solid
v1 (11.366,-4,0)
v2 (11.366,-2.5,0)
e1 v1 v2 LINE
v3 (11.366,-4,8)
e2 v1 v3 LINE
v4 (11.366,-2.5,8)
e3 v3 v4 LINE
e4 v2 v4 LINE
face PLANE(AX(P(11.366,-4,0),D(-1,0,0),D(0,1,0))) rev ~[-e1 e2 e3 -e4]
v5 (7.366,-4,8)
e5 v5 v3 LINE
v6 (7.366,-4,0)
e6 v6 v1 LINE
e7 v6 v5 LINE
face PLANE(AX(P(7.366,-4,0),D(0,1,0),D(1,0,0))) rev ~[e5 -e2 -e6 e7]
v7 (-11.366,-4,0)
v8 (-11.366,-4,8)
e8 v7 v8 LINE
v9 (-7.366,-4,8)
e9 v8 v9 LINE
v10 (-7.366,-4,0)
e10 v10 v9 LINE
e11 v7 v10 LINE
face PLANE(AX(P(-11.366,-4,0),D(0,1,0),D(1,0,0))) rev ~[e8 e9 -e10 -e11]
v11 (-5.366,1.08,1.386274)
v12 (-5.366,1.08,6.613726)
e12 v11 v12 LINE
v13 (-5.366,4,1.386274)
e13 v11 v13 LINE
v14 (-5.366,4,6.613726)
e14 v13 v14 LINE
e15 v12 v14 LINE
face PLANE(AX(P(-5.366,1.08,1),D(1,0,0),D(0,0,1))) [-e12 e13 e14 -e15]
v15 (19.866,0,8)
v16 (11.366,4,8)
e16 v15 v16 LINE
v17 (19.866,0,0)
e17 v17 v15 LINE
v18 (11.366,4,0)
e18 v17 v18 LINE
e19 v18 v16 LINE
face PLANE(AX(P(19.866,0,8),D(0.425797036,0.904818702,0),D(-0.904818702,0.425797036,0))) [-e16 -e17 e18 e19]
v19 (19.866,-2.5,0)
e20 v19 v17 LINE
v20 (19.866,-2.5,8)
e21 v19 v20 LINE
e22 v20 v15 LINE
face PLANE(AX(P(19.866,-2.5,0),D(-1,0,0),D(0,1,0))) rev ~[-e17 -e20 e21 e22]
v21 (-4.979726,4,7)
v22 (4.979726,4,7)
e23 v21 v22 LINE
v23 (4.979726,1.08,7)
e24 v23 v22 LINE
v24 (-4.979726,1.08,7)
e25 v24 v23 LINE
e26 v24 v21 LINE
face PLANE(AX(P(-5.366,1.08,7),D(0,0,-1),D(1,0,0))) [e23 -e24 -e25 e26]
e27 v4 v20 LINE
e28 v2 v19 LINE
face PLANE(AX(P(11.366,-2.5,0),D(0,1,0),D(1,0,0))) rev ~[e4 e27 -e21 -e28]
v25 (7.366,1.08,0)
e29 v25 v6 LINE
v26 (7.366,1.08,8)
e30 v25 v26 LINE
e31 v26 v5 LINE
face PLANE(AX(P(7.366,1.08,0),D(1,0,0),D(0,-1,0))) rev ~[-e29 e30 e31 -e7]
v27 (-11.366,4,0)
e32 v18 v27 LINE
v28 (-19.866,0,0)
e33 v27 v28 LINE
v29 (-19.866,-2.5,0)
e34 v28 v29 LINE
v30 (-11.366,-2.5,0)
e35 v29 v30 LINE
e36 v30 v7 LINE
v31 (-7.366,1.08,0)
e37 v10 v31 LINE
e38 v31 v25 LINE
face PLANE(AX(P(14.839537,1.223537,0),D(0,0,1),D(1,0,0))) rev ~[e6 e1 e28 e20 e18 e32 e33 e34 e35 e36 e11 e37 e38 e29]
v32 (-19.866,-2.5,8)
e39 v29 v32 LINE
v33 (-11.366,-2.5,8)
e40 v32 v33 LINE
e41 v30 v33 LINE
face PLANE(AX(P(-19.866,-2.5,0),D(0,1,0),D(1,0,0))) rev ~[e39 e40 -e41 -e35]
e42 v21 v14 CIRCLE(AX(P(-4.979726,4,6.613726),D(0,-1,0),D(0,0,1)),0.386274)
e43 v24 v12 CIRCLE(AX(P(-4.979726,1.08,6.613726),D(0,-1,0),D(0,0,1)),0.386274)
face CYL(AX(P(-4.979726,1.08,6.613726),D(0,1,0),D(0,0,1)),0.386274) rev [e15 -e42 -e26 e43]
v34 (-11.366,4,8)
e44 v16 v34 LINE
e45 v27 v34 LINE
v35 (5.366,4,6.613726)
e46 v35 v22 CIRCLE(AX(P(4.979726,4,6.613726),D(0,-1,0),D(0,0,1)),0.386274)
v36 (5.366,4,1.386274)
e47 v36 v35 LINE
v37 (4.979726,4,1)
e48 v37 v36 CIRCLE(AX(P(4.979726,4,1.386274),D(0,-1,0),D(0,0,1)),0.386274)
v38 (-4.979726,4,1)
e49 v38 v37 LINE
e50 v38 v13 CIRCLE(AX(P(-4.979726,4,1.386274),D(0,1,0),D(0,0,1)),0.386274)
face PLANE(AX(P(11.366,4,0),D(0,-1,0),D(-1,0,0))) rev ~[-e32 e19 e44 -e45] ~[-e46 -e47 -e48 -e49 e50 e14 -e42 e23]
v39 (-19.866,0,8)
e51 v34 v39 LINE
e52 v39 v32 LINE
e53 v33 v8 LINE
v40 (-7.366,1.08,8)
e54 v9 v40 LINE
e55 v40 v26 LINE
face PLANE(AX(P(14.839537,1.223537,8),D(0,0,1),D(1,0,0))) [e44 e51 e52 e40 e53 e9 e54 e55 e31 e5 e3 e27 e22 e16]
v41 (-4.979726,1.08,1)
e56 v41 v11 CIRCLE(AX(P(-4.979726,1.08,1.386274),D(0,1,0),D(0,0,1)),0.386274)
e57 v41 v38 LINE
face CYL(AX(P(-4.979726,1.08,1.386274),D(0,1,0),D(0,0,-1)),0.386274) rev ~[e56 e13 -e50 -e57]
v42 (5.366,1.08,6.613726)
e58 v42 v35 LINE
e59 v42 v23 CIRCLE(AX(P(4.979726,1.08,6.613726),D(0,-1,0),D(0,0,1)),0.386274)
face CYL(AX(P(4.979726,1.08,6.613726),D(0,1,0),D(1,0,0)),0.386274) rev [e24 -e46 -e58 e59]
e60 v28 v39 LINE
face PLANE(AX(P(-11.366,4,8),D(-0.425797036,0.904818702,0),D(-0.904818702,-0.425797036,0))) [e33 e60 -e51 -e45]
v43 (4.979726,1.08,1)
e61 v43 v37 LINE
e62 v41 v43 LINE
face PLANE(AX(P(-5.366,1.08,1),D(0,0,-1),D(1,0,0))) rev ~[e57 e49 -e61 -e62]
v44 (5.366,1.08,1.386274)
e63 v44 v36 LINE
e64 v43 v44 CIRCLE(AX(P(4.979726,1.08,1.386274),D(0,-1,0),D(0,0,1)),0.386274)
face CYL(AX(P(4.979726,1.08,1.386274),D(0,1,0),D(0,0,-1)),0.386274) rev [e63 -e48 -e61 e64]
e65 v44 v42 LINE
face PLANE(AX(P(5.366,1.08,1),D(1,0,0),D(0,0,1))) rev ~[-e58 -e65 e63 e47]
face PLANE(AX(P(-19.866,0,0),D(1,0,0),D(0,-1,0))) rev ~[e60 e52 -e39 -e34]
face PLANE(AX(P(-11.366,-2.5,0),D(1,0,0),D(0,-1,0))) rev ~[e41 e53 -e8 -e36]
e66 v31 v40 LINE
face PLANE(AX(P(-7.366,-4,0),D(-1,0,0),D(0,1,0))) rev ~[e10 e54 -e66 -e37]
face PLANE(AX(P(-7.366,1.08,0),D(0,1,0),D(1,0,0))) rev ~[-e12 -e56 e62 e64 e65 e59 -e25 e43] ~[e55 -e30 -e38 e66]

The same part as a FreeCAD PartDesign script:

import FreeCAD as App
import Part
import Sketcher


def edges_at(feature, points):
    """Names of the edges that pass closest to the given points."""
    edges = feature.Shape.Edges
    near = lambda p: min(range(len(edges)), key=lambda i: edges[i].distToShape(Part.Vertex(*p))[0])
    return sorted({f"Edge{near(p) + 1}" for p in points})

doc = App.newDocument("Part")
body = doc.addObject("PartDesign::Body", "Body")

# Sketch on XY plane
sketch1 = body.newObject("Sketcher::SketchObject", "Sketch")
sketch1.AttachmentSupport = (doc.getObject("XY_Plane"), [""])
sketch1.MapMode = "FlatFace"
sketch1.addGeometry([
    Part.LineSegment(App.Vector(11.4, 4, 0), App.Vector(-11.4, 4, 0)),  # 0
    Part.LineSegment(App.Vector(-11.4, 4, 0), App.Vector(-11.4, 0, 0)),  # 1
    Part.LineSegment(App.Vector(-11.4, 0, 0), App.Vector(-19.9, 0, 0)),  # 2
    Part.LineSegment(App.Vector(-19.9, 0, 0), App.Vector(-19.9, -2.5, 0)),  # 3
    Part.LineSegment(App.Vector(-19.9, -2.5, 0), App.Vector(-11.4, -2.5, 0)),  # 4
    Part.LineSegment(App.Vector(-11.4, -2.5, 0), App.Vector(-11.4, -4, 0)),  # 5
    Part.LineSegment(App.Vector(-11.4, -4, 0), App.Vector(-7.4, -4, 0)),  # 6
    Part.LineSegment(App.Vector(-7.4, -4, 0), App.Vector(-7.4, 1.1, 0)),  # 7
    Part.LineSegment(App.Vector(-7.4, 1.1, 0), App.Vector(7.4, 1.1, 0)),  # 8
    Part.LineSegment(App.Vector(7.4, 1.1, 0), App.Vector(7.4, -4, 0)),  # 9
    Part.LineSegment(App.Vector(7.4, -4, 0), App.Vector(11.4, -4, 0)),  # 10
    Part.LineSegment(App.Vector(11.4, -4, 0), App.Vector(11.4, -2.5, 0)),  # 11
    Part.LineSegment(App.Vector(11.4, -2.5, 0), App.Vector(19.9, -2.5, 0)),  # 12
    Part.LineSegment(App.Vector(19.9, -2.5, 0), App.Vector(19.9, 0, 0)),  # 13
    Part.LineSegment(App.Vector(19.9, 0, 0), App.Vector(11.4, 0, 0)),  # 14
    Part.LineSegment(App.Vector(11.4, 0, 0), App.Vector(11.4, 4, 0)),  # 15
], False)
sketch1.addConstraint([
    Sketcher.Constraint("Coincident", 0, 2, 1, 1),
    Sketcher.Constraint("Coincident", 1, 2, 2, 1),
    Sketcher.Constraint("Coincident", 2, 2, 3, 1),
    Sketcher.Constraint("Coincident", 3, 2, 4, 1),
    Sketcher.Constraint("Coincident", 4, 2, 5, 1),
    Sketcher.Constraint("Coincident", 5, 2, 6, 1),
    Sketcher.Constraint("Coincident", 6, 2, 7, 1),
    Sketcher.Constraint("Coincident", 7, 2, 8, 1),
    Sketcher.Constraint("Coincident", 8, 2, 9, 1),
    Sketcher.Constraint("Coincident", 9, 2, 10, 1),
    Sketcher.Constraint("Coincident", 10, 2, 11, 1),
    Sketcher.Constraint("Coincident", 11, 2, 12, 1),
    Sketcher.Constraint("Coincident", 12, 2, 13, 1),
    Sketcher.Constraint("Coincident", 13, 2, 14, 1),
    Sketcher.Constraint("Coincident", 14, 2, 15, 1),
    Sketcher.Constraint("Coincident", 15, 2, 0, 1),
    Sketcher.Constraint("Horizontal", 0),
    Sketcher.Constraint("Vertical", 1),
    Sketcher.Constraint("Horizontal", 2),
    Sketcher.Constraint("Vertical", 3),
    Sketcher.Constraint("Horizontal", 4),
    Sketcher.Constraint("Vertical", 5),
    Sketcher.Constraint("Horizontal", 6),
    Sketcher.Constraint("Vertical", 7),
    Sketcher.Constraint("Horizontal", 8),
    Sketcher.Constraint("Vertical", 9),
    Sketcher.Constraint("Horizontal", 10),
    Sketcher.Constraint("Vertical", 11),
    Sketcher.Constraint("Horizontal", 12),
    Sketcher.Constraint("Vertical", 13),
    Sketcher.Constraint("Horizontal", 14),
    Sketcher.Constraint("Vertical", 15),
    Sketcher.Constraint("Symmetric", 0, 2, 10, 2, -1, 1),
    Sketcher.Constraint("Symmetric", 2, 2, 13, 2, -1, 1),
    Sketcher.Constraint("Symmetric", 5, 2, 15, 2, -1, 1),
    Sketcher.Constraint("Symmetric", 4, 2, 11, 2, -2),
    Sketcher.Constraint("PointOnObject", 1, 2, -1),
    Sketcher.Constraint("Equal", 6, 10),
    Sketcher.Constraint("Equal", 10, 1),
    Sketcher.Constraint("DistanceX", 6, 1, 6, 2, 4.0),
    Sketcher.Constraint("DistanceX", 2, 2, 2, 1, 8.5),
    Sketcher.Constraint("DistanceY", 3, 2, 3, 1, 2.5),
    Sketcher.Constraint("DistanceY", 7, 1, 7, 2, 5.08),
    Sketcher.Constraint("DistanceX", 0, 2, 0, 1, 22.732),
])
pad1 = body.newObject("PartDesign::Pad", "Pad")
pad1.Profile = sketch1
pad1.Length = 8

# Sketch on XZ plane
sketch2 = body.newObject("Sketcher::SketchObject", "Sketch001")
sketch2.AttachmentSupport = (doc.getObject("XZ_Plane"), [""])
sketch2.MapMode = "FlatFace"
sketch2.AttachmentOffset = App.Placement(App.Vector(0, 0, -1.08), App.Rotation())
sketch2.addGeometry([
    Part.LineSegment(App.Vector(-5, 7, 0), App.Vector(-5, 1, 0)),
    Part.LineSegment(App.Vector(-5, 1, 0), App.Vector(5, 1, 0)),
    Part.LineSegment(App.Vector(5, 1, 0), App.Vector(5, 7, 0)),
    Part.LineSegment(App.Vector(5, 7, 0), App.Vector(-5, 7, 0)),
], False)
sketch2.addConstraint([
    Sketcher.Constraint("Coincident", 0, 2, 1, 1),
    Sketcher.Constraint("Coincident", 1, 2, 2, 1),
    Sketcher.Constraint("Coincident", 2, 2, 3, 1),
    Sketcher.Constraint("Coincident", 3, 2, 0, 1),
    Sketcher.Constraint("Vertical", 0),
    Sketcher.Constraint("Horizontal", 1),
    Sketcher.Constraint("Vertical", 2),
    Sketcher.Constraint("Horizontal", 3),
    Sketcher.Constraint("DistanceY", 0, 2, 0, 1, 6.0),
    Sketcher.Constraint("DistanceY", -1, 1, 0, 2, 1.0),
    Sketcher.Constraint("DistanceX", 1, 1, 1, 2, 10.732),
    Sketcher.Constraint("DistanceX", 0, 2, -1, 1, 5.366),
])
pocket1 = body.newObject("PartDesign::Pocket", "Pocket")
pocket1.Profile = sketch2
pocket1.Length = 25
doc.recompute()

fillet = body.newObject("PartDesign::Fillet", "Fillet")
fillet.Base = (pocket1, edges_at(pocket1, [
    (-5.366, 2.54, 1),
    (-5.366, 2.54, 7),
    (5.366, 2.54, 7),
    (5.366, 2.54, 1),
]))
fillet.Radius = 0.386274

# Sketch on XY plane
sketch3 = body.newObject("Sketcher::SketchObject", "Sketch002")
sketch3.AttachmentSupport = (doc.getObject("XY_Plane"), [""])
sketch3.MapMode = "FlatFace"
sketch3.AttachmentOffset = App.Placement(App.Vector(0, 0, 8), App.Rotation())
sketch3.addGeometry([
    Part.LineSegment(App.Vector(19.9, 0, 0), App.Vector(11.4, 4, 0)),  # 0
    Part.LineSegment(App.Vector(11.4, 4, 0), App.Vector(11.4, 0, 0)),  # 1
    Part.LineSegment(App.Vector(11.4, 0, 0), App.Vector(19.9, 0, 0)),  # 2
    Part.LineSegment(App.Vector(-11.4, 0, 0), App.Vector(-11.4, 4, 0)),  # 3
    Part.LineSegment(App.Vector(-11.4, 4, 0), App.Vector(-19.9, 0, 0)),  # 4
    Part.LineSegment(App.Vector(-19.9, 0, 0), App.Vector(-11.4, 0, 0)),  # 5
], False)
sketch3.addConstraint([
    Sketcher.Constraint("Coincident", 0, 2, 1, 1),
    Sketcher.Constraint("Coincident", 1, 2, 2, 1),
    Sketcher.Constraint("Coincident", 2, 2, 0, 1),
    Sketcher.Constraint("Coincident", 3, 2, 4, 1),
    Sketcher.Constraint("Coincident", 4, 2, 5, 1),
    Sketcher.Constraint("Coincident", 5, 2, 3, 1),
    Sketcher.Constraint("Vertical", 1),
    Sketcher.Constraint("Horizontal", 2),
    Sketcher.Constraint("Vertical", 3),
    Sketcher.Constraint("Horizontal", 5),
    Sketcher.Constraint("Symmetric", 2, 2, 4, 2, -1, 1),
    Sketcher.Constraint("Symmetric", 0, 2, 3, 2, -2),
    Sketcher.Constraint("PointOnObject", 1, 2, -1),
    Sketcher.Constraint("DistanceY", 1, 2, 1, 1, 4.0),
    Sketcher.Constraint("DistanceX", 2, 1, 2, 2, 8.5),
    Sketcher.Constraint("DistanceX", -1, 1, 0, 2, 11.366),
])
pad2 = body.newObject("PartDesign::Pad", "Pad001")
pad2.Profile = sketch3
pad2.Length = 8
pad2.Reversed = True

doc.recompute()
